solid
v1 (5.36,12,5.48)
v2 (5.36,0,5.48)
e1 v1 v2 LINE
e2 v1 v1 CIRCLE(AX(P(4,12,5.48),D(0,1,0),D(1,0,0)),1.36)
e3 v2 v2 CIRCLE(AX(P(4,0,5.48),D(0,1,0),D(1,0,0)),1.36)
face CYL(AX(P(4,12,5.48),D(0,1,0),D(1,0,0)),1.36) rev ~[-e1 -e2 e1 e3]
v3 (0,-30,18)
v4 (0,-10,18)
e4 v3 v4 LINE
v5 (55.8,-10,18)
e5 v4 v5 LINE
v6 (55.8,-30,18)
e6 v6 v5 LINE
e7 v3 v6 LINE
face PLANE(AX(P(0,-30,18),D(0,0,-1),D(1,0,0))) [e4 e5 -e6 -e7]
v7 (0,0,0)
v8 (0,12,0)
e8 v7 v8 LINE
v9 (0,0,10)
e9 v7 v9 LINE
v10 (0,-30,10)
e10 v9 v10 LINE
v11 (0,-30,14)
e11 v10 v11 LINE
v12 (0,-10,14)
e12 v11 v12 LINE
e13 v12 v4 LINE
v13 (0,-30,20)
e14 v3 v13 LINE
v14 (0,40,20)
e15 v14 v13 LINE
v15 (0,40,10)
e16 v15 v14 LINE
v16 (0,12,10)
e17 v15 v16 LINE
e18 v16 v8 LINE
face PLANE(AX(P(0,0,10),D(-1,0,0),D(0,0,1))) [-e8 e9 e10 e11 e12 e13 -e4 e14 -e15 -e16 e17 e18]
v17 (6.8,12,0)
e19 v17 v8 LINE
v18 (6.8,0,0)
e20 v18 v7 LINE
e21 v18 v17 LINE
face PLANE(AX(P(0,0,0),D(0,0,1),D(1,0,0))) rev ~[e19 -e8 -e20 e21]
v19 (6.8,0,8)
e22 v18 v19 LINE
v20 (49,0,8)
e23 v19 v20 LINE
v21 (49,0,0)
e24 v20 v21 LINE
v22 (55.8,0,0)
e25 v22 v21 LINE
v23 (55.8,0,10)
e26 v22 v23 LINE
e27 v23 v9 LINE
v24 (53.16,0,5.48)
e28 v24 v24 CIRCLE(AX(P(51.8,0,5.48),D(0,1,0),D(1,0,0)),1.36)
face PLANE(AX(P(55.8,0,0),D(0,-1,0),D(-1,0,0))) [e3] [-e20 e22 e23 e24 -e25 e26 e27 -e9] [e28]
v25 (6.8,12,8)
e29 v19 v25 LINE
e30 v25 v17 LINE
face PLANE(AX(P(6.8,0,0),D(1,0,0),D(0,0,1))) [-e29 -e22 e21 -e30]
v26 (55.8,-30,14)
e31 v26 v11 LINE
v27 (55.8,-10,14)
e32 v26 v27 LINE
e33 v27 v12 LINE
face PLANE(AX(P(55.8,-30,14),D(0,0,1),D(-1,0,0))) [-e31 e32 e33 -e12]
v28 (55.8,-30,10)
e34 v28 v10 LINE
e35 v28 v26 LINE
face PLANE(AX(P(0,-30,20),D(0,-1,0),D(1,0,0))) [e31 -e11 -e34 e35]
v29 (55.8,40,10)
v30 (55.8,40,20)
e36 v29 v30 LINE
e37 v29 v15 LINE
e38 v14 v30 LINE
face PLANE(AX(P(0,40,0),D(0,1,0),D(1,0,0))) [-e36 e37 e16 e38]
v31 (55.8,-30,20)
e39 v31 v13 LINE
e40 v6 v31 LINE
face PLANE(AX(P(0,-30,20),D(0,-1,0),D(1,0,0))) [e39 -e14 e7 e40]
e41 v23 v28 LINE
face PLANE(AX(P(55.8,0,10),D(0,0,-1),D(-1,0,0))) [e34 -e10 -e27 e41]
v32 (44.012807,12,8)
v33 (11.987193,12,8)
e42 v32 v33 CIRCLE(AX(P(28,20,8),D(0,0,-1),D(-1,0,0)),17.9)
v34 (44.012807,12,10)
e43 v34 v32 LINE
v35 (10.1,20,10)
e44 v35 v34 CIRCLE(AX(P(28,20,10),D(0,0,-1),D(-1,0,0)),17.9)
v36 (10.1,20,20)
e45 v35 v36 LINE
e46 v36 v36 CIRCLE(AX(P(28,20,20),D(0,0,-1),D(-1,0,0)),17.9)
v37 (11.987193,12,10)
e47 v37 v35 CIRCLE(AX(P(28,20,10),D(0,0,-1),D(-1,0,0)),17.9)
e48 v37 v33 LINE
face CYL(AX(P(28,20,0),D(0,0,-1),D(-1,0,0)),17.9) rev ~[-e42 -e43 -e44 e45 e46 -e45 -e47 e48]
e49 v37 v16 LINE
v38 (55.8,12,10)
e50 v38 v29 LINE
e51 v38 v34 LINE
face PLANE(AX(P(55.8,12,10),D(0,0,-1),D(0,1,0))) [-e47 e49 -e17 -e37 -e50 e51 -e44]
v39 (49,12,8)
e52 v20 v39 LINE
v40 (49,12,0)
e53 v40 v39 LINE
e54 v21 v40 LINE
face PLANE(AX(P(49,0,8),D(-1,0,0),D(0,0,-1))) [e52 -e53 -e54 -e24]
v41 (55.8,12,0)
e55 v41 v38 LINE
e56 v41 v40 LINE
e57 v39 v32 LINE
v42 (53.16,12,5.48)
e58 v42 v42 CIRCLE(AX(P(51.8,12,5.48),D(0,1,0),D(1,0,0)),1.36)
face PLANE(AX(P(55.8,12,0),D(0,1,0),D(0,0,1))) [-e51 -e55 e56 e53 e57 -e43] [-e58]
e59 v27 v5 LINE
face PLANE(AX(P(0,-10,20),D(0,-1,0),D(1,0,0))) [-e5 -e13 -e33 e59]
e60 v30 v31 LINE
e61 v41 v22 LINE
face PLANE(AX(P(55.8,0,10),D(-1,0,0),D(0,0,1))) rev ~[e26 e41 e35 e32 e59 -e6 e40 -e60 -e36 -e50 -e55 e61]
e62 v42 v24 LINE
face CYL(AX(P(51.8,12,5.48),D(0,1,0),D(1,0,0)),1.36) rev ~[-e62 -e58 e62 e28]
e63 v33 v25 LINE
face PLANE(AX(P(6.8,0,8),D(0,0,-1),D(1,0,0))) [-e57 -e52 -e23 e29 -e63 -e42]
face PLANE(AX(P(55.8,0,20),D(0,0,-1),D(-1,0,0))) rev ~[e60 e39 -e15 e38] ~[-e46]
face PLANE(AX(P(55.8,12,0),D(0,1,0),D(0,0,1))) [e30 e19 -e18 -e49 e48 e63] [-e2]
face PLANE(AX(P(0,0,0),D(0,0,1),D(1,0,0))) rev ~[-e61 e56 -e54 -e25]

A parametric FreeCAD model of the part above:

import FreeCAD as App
import Part
import Sketcher

V = App.Vector
Q = App.Units.Quantity


def add_polygon(sketch, points):
    """Adds a closed chain of lines whose ends are joined by coincident constraints."""
    first, n = sketch.GeometryCount, len(points)
    for a, b in zip(points, points[1:] + points[:1]):
        sketch.addGeometry(Part.LineSegment(App.Vector(*a, 0), App.Vector(*b, 0)), False)
    for i in range(n):
        sketch.addConstraint(Sketcher.Constraint("Coincident", first + i, 2, first + (i + 1) % n, 1))

doc = App.newDocument("Part")
params = doc.addObject("Spreadsheet::Sheet", "Params")
for row, (alias, value) in enumerate([
    ("sketch1_height", "40 mm"),
    ("sketch1_width", "55.8 mm"),
    ("pad1_length", "20 mm"),
    ("sketch2_height", "10 mm"),
    ("sketch2_width", "28 mm"),
    ("pocket1_length", "60 mm"),
    ("sketch3_diameter", "2.72 mm"),
    ("pocket2_length", "20 mm"),
    ("sketch4_diameter", "35.8 mm"),
    ("pocket3_length", "60 mm"),
    ("sketch5_height", "8 mm"),
    ("sketch5_width", "42.2 mm"),
    ("pocket4_length", "13 mm"),
    ("sketch6_height", "10 mm"),
    ("sketch6_width", "55.8 mm"),
    ("pad2_length", "30 mm"),
    ("sketch7_height", "4 mm"),
    ("sketch7_width", "55.8 mm"),
    ("pocket5_length", "20 mm"),
], start=1):
    params.set(f"A{row}", alias)
    params.set(f"B{row}", "=" + value)
    params.setAlias(f"B{row}", alias)

body = doc.addObject("PartDesign::Body", "Body")

sketch1 = doc.addObject("Sketcher::SketchObject", "Sketch")
body.addObject(sketch1)
sketch1.AttachmentSupport = (doc.XY_Plane, [""])
sketch1.MapMode = "FlatFace"
add_polygon(sketch1, [(56, 40), (0, 40), (0, 0), (56, 0)])
sketch1.addConstraint([
    Sketcher.Constraint("Horizontal", 0),
    Sketcher.Constraint("Vertical", 1),
    Sketcher.Constraint("Horizontal", 2),
    Sketcher.Constraint("Vertical", 3),
    Sketcher.Constraint("Coincident", 1, 2, -1, 1),
    Sketcher.Constraint("DistanceY", 1, 2, 1, 1, Q("40 mm")),
    Sketcher.Constraint("DistanceX", 0, 2, 0, 1, Q("55.8 mm")),
])
sketch1.setExpression("Constraints[9]", "Params.sketch1_height")
sketch1.setExpression("Constraints[10]", "Params.sketch1_width")
pad1 = doc.addObject("PartDesign::Pad", "Pad")
body.addObject(pad1)
pad1.Profile = sketch1
pad1.setExpression("Length", "Params.pad1_length")

sketch2 = doc.addObject("Sketcher::SketchObject", "Sketch001")
body.addObject(sketch2)
sketch2.AttachmentSupport = (doc.YZ_Plane, [""])
sketch2.MapMode = "FlatFace"
sketch2.AttachmentOffset = App.Placement(V(0, 0, 55.8), App.Rotation())
add_polygon(sketch2, [(12, 0), (40, 0), (40, 10), (12, 10)])
sketch2.addConstraint([
    Sketcher.Constraint("Horizontal", 0),
    Sketcher.Constraint("Vertical", 1),
    Sketcher.Constraint("Horizontal", 2),
    Sketcher.Constraint("Vertical", 3),
    Sketcher.Constraint("PointOnObject", 0, 2, -1),
    Sketcher.Constraint("DistanceY", 1, 1, 1, 2, Q("10 mm")),
    Sketcher.Constraint("DistanceX", 0, 1, 0, 2, Q("28 mm")),
    Sketcher.Constraint("DistanceX", -1, 1, 0, 2, Q("40 mm")),
])
sketch2.setExpression("Constraints[9]", "Params.sketch2_height")
sketch2.setExpression("Constraints[10]", "Params.sketch2_width")
pocket1 = doc.addObject("PartDesign::Pocket", "Pocket")
body.addObject(pocket1)
pocket1.Profile = sketch2
pocket1.setExpression("Length", "Params.pocket1_length")

sketch3 = doc.addObject("Sketcher::SketchObject", "Sketch002")
body.addObject(sketch3)
sketch3.AttachmentSupport = (doc.XZ_Plane, [""])
sketch3.MapMode = "FlatFace"
sketch3.AttachmentOffset = App.Placement(V(0, 0, -12), App.Rotation())
sketch3.addGeometry([
    Part.Circle(V(4, 5.5, 0), V(0, 0, 1), 1.4),
    Part.Circle(V(51.8, 5.5, 0), V(0, 0, 1), 1.4),
], False)
sketch3.addConstraint([
    Sketcher.Constraint("Equal", 0, 1),
    Sketcher.Constraint("Horizontal", 0, 3, 1, 3),
    Sketcher.Constraint("DistanceX", -1, 1, 0, 3, Q("4 mm")),
    Sketcher.Constraint("Diameter", 0, Q("2.72 mm")),
    Sketcher.Constraint("DistanceX", -1, 1, 1, 3, Q("51.8 mm")),
    Sketcher.Constraint("DistanceY", -1, 1, 0, 3, Q("5.48 mm")),
])
sketch3.setExpression("Constraints[3]", "Params.sketch3_diameter")
pocket2 = doc.addObject("PartDesign::Pocket", "Pocket001")
body.addObject(pocket2)
pocket2.Profile = sketch3
pocket2.setExpression("Length", "Params.pocket2_length")
pocket2.Reversed = True

sketch4 = doc.addObject("Sketcher::SketchObject", "Sketch003")
body.addObject(sketch4)
sketch4.AttachmentSupport = (doc.XY_Plane, [""])
sketch4.MapMode = "FlatFace"
sketch4.addGeometry(Part.Circle(V(28, 20, 0), V(0, 0, 1), 18), False)
sketch4.addConstraint([
    Sketcher.Constraint("Diameter", 0, Q("35.8 mm")),
    Sketcher.Constraint("DistanceX", -1, 1, 0, 3, Q("28 mm")),
    Sketcher.Constraint("DistanceY", -1, 1, 0, 3, Q("20 mm")),
])
sketch4.setExpression("Constraints[0]", "Params.sketch4_diameter")
pocket3 = doc.addObject("PartDesign::Pocket", "Pocket002")
body.addObject(pocket3)
pocket3.Profile = sketch4
pocket3.setExpression("Length", "Params.pocket3_length")
pocket3.Midplane = True

sketch5 = doc.addObject("Sketcher::SketchObject", "Sketch004")
body.addObject(sketch5)
sketch5.AttachmentSupport = (doc.XZ_Plane, [""])
sketch5.MapMode = "FlatFace"
add_polygon(sketch5, [(7, 0), (49, 0), (49, 8), (7, 8)])
sketch5.addConstraint([
    Sketcher.Constraint("Horizontal", 0),
    Sketcher.Constraint("Vertical", 1),
    Sketcher.Constraint("Horizontal", 2),
    Sketcher.Constraint("Vertical", 3),
    Sketcher.Constraint("PointOnObject", 0, 2, -1),
    Sketcher.Constraint("DistanceX", -1, 1, 2, 2, Q("6.8 mm")),
    Sketcher.Constraint("DistanceY", 1, 1, 1, 2, Q("8 mm")),
    Sketcher.Constraint("DistanceX", 0, 1, 0, 2, Q("42.2 mm")),
])
sketch5.setExpression("Constraints[10]", "Params.sketch5_height")
sketch5.setExpression("Constraints[11]", "Params.sketch5_width")
pocket4 = doc.addObject("PartDesign::Pocket", "Pocket003")
body.addObject(pocket4)
pocket4.Profile = sketch5
pocket4.setExpression("Length", "Params.pocket4_length")

sketch6 = doc.addObject("Sketcher::SketchObject", "Sketch005")
body.addObject(sketch6)
sketch6.AttachmentSupport = (doc.XZ_Plane, [""])
sketch6.MapMode = "FlatFace"
add_polygon(sketch6, [(56, 10), (56, 20), (0, 20), (0, 10)])
sketch6.addConstraint([
    Sketcher.Constraint("Vertical", 0),
    Sketcher.Constraint("Horizontal", 1),
    Sketcher.Constraint("Vertical", 2),
    Sketcher.Constraint("Horizontal", 3),
    Sketcher.Constraint("PointOnObject", 1, 2, -2),
    Sketcher.Constraint("DistanceY", 0, 1, 0, 2, Q("10 mm")),
    Sketcher.Constraint("DistanceY", -1, 1, 2, 2, Q("10 mm")),
    Sketcher.Constraint("DistanceX", 1, 2, 1, 1, Q("55.8 mm")),
])
sketch6.setExpression("Constraints[9]", "Params.sketch6_height")
sketch6.setExpression("Constraints[11]", "Params.sketch6_width")
pad2 = doc.addObject("PartDesign::Pad", "Pad001")
body.addObject(pad2)
pad2.Profile = sketch6
pad2.setExpression("Length", "Params.pad2_length")

sketch7 = doc.addObject("Sketcher::SketchObject", "Sketch006")
body.addObject(sketch7)
sketch7.AttachmentSupport = (doc.XZ_Plane, [""])
sketch7.MapMode = "FlatFace"
sketch7.AttachmentOffset = App.Placement(V(0, 0, 30), App.Rotation())
add_polygon(sketch7, [(0, 18), (0, 14), (55.8, 14), (55.8, 18)])
sketch7.addConstraint([
    Sketcher.Constraint("Vertical", 0),
    Sketcher.Constraint("Horizontal", 1),
    Sketcher.Constraint("Vertical", 2),
    Sketcher.Constraint("Horizontal", 3),
    Sketcher.Constraint("PointOnObject", 0, 2, -2),
    Sketcher.Constraint("DistanceY", 0, 2, 0, 1, Q("4 mm")),
    Sketcher.Constraint("DistanceX", 1, 1, 1, 2, Q("55.8 mm")),
    Sketcher.Constraint("DistanceY", -1, 1, 0, 2, Q("14 mm")),
])
sketch7.setExpression("Constraints[9]", "Params.sketch7_height")
sketch7.setExpression("Constraints[10]", "Params.sketch7_width")
pocket5 = doc.addObject("PartDesign::Pocket", "Pocket004")
body.addObject(pocket5)
pocket5.Profile = sketch7
pocket5.setExpression("Length", "Params.pocket5_length")

doc.recompute()
